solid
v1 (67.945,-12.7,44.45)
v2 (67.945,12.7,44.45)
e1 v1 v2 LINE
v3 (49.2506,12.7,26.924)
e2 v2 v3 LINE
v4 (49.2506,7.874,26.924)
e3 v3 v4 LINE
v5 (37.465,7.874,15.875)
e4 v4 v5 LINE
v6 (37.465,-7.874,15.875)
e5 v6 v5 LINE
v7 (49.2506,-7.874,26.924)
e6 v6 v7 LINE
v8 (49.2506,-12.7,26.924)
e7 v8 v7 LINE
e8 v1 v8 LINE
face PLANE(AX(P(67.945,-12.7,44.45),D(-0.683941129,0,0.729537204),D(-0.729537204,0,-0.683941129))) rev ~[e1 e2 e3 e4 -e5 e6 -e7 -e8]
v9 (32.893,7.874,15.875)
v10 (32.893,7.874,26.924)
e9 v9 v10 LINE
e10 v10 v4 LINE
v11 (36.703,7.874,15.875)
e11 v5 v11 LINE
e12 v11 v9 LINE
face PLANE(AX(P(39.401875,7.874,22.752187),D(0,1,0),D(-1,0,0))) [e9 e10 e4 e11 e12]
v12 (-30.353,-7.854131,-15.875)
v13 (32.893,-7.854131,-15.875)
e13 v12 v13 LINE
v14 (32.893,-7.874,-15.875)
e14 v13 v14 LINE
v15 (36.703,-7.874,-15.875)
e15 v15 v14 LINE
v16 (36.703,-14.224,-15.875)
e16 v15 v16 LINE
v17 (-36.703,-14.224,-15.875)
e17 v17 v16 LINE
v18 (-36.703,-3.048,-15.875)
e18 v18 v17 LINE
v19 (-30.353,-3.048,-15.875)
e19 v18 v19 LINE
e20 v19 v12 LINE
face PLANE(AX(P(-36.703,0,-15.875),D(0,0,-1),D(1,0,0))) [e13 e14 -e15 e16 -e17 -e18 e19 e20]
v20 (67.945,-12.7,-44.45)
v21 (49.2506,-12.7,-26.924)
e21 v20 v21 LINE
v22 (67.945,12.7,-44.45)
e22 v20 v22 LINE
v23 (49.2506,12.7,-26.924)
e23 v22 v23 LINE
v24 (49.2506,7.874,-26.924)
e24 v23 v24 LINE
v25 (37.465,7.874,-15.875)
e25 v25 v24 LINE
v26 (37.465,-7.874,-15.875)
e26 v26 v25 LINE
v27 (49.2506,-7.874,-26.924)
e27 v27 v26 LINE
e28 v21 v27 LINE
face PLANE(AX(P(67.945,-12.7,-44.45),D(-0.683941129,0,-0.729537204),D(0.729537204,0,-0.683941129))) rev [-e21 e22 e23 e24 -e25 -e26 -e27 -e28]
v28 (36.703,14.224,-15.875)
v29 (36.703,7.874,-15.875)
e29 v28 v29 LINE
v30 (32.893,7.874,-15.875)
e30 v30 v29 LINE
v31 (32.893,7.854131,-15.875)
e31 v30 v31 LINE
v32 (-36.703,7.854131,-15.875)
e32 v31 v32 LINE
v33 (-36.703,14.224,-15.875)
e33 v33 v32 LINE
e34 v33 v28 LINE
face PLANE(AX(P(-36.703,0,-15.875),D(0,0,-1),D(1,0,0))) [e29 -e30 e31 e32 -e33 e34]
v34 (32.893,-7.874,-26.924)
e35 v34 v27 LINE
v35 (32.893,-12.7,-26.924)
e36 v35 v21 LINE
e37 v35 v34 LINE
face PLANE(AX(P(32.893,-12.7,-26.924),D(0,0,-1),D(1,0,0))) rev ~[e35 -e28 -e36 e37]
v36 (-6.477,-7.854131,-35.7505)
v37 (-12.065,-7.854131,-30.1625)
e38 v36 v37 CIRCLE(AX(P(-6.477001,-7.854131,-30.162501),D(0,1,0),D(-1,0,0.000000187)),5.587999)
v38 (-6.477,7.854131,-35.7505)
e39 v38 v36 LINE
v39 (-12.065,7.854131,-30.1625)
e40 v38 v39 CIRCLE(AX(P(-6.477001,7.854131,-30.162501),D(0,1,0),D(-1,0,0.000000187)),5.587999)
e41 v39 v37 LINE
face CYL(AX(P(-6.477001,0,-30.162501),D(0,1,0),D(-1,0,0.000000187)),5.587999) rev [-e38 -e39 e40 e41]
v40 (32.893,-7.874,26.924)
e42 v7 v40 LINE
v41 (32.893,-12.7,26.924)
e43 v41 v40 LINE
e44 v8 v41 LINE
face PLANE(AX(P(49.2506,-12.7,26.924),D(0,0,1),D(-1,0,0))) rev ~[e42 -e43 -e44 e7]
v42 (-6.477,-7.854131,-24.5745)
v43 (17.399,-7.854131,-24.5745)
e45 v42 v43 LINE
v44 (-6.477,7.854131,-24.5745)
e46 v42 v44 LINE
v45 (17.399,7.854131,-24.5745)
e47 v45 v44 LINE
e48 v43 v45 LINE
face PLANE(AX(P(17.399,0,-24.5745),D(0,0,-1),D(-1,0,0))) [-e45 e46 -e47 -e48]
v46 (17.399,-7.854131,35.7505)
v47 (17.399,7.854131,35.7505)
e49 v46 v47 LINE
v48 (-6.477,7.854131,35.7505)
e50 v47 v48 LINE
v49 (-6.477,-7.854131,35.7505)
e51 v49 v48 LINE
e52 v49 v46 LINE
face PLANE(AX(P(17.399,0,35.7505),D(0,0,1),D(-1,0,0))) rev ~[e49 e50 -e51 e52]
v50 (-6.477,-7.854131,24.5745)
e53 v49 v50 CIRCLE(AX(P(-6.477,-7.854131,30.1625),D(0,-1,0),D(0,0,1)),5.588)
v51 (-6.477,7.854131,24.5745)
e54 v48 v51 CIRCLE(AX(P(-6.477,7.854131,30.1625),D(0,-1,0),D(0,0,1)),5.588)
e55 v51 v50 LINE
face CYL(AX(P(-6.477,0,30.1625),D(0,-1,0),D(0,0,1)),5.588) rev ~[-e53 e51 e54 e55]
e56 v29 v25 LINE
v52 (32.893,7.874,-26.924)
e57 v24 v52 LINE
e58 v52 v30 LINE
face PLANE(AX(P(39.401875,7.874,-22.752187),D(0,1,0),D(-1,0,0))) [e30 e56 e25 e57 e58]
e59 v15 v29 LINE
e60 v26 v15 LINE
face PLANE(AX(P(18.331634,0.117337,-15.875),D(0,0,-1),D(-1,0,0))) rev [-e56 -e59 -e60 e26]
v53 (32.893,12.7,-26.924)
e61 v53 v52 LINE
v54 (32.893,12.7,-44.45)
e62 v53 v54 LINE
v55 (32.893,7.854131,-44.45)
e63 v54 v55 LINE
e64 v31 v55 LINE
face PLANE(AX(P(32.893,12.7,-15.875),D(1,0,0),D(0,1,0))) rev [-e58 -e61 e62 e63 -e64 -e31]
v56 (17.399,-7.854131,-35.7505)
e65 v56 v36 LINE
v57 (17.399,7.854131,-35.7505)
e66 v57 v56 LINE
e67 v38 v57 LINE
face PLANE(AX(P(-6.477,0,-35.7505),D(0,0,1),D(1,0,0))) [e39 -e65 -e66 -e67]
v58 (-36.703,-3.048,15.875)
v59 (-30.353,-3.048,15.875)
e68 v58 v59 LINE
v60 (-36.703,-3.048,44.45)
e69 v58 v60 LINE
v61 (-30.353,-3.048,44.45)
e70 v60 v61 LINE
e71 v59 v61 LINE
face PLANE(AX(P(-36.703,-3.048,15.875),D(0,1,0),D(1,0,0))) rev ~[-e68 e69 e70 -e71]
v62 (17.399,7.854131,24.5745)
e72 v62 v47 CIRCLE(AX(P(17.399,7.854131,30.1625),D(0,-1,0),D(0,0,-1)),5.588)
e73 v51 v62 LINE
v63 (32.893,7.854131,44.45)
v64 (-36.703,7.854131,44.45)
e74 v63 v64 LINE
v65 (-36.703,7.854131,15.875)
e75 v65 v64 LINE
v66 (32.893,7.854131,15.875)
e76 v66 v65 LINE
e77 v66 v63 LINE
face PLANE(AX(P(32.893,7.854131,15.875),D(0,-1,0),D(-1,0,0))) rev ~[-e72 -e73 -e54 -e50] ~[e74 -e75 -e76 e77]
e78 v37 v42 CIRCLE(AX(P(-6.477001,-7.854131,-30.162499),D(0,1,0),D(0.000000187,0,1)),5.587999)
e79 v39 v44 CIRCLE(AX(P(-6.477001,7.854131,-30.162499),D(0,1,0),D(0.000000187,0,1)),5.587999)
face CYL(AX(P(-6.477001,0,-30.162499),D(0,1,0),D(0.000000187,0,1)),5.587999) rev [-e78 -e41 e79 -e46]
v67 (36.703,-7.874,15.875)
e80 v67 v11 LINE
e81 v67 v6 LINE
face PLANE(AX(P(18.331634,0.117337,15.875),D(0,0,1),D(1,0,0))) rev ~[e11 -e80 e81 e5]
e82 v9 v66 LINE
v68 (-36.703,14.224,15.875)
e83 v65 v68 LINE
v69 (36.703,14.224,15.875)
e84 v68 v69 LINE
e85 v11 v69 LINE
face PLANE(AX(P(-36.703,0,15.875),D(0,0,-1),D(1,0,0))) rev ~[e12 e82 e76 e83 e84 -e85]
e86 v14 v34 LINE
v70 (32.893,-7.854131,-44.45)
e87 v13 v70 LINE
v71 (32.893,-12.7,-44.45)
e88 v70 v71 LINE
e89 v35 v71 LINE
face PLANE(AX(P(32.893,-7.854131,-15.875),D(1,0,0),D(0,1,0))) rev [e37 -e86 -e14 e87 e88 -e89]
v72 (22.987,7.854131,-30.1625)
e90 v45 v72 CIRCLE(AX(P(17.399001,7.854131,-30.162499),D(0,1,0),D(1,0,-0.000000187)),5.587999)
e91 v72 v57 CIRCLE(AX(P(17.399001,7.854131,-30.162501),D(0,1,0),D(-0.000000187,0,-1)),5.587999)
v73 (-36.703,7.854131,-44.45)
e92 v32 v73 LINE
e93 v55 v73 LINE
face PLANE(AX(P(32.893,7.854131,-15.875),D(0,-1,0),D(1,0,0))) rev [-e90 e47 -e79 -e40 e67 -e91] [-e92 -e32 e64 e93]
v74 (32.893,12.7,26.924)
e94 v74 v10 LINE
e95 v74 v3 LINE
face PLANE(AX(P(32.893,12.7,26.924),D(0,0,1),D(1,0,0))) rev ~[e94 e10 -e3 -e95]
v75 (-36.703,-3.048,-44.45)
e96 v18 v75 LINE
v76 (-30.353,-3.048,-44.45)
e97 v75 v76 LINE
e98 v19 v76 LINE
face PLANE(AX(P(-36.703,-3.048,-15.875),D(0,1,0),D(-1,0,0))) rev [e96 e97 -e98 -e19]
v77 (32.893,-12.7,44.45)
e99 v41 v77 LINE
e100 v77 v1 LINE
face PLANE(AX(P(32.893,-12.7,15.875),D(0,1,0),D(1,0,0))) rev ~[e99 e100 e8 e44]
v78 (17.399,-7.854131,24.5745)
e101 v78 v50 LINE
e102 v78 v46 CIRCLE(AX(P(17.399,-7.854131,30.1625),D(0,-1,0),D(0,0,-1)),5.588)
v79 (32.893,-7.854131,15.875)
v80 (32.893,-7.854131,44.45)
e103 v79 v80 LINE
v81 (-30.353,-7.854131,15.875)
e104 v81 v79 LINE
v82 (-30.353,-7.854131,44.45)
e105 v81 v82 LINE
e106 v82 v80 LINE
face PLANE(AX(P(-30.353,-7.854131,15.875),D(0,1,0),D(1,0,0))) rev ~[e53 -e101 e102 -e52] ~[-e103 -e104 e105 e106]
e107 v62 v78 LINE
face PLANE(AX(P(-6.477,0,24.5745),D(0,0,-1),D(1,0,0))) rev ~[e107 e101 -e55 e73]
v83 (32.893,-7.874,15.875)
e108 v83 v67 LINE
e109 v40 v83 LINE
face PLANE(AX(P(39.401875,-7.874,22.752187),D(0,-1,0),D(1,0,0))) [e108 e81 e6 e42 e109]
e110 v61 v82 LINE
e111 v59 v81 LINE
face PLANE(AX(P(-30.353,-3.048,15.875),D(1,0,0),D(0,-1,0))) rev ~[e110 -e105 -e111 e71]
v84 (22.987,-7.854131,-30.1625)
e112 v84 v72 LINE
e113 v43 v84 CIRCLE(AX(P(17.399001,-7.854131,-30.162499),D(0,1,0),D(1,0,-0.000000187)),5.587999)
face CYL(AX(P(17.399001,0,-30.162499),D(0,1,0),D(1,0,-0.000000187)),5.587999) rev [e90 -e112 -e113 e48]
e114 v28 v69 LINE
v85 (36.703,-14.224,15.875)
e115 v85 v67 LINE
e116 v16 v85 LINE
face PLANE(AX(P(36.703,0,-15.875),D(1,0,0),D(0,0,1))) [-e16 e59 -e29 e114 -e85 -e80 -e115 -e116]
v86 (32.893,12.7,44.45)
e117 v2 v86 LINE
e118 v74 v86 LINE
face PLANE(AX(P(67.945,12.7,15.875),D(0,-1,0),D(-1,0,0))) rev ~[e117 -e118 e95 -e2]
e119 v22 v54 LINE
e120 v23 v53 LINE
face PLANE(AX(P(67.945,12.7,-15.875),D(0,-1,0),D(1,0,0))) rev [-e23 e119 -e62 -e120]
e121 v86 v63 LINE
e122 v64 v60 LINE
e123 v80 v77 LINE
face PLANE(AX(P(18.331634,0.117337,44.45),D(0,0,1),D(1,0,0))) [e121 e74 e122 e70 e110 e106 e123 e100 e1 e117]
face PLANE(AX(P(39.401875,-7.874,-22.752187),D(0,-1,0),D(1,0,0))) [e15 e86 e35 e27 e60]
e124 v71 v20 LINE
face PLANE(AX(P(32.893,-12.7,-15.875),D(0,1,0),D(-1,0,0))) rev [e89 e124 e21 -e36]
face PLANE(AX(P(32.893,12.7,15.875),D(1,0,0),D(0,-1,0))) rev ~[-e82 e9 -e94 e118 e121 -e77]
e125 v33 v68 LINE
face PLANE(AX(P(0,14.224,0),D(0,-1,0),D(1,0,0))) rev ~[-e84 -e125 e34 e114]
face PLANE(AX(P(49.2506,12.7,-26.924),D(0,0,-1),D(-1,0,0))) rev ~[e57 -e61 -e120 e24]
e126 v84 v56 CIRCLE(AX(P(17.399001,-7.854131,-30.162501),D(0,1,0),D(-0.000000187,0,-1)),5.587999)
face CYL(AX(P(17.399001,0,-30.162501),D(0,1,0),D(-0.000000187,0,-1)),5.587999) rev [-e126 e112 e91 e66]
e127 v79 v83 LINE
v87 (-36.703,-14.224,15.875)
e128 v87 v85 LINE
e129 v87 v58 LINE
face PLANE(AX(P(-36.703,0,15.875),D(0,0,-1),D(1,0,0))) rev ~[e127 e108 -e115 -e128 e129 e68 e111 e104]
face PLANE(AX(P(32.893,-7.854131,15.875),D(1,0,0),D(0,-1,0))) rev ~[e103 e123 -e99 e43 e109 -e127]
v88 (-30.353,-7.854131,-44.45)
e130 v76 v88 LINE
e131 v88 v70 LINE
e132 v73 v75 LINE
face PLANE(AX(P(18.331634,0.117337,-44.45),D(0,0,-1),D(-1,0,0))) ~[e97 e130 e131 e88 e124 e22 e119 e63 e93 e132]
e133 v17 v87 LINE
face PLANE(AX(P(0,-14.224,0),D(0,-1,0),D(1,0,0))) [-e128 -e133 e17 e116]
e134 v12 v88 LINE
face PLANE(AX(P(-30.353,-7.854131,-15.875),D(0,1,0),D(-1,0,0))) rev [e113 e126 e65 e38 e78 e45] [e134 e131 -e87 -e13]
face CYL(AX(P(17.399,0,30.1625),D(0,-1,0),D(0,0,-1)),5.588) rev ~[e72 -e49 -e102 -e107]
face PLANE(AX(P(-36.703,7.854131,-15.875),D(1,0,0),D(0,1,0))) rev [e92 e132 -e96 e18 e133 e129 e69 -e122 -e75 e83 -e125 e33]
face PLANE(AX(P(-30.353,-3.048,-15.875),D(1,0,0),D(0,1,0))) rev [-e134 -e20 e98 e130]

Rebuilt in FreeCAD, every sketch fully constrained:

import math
import FreeCAD as App
import Part
import Sketcher
from FreeCAD import Vector
Q = App.Units.Quantity


def add_polygon(sketch, points):
    """Adds a closed chain of lines whose ends are joined by coincident constraints."""
    first, n = sketch.GeometryCount, len(points)
    for a, b in zip(points, points[1:] + points[:1]):
        sketch.addGeometry(Part.LineSegment(App.Vector(*a, 0), App.Vector(*b, 0)), False)
    for i in range(n):
        sketch.addConstraint(Sketcher.Constraint("Coincident", first + i, 2, first + (i + 1) % n, 1))

doc = App.newDocument("Part")
params = doc.addObject("Spreadsheet::Sheet", "Params")
for row, (alias, value) in enumerate([
    ("sketch1_width", "2.89 in"),
    ("sketch1_height", "1.25 in"),
    ("pad1_length", "1.12 in"),
    ("sketch2_height", "1 in"),
    ("sketch2_width", "0.25 in"),
    ("sketch2_width2", "2.49 in"),
    ("sketch2_width3", "1.38 in"),
    ("pad2_length", "1.125 in"),
    ("sketch3_width", "1.2 in"),
    ("sketch3_height", "1.125 in"),
    ("pocket1_length", "1 in"),
    ("sketch4_radius", "0.22 in"),
    ("sketch4_width", "0.94 in"),
    ("pocket2_length", "1 in"),
    ("sketch5_width", "0.18 in"),
    ("sketch5_width2", "0.644 in"),
    ("sketch5_height", "0.435 in"),
    ("pocket3_length", "0.19 in"),
    ("sketch6_width", "0.18 in"),
    ("sketch6_width2", "0.644 in"),
    ("sketch6_height", "0.435 in"),
    ("pocket4_length", "0.19 in"),
], start=1):
    params.set(f"A{row}", alias)
    params.set(f"B{row}", "=" + value)
    params.setAlias(f"B{row}", alias)

body = doc.addObject("PartDesign::Body", "Body")

# Sketch on XZ plane
sketch1 = body.newObject("Sketcher::SketchObject", "Sketch")
sketch1.AttachmentSupport = (doc.getObject("XZ_Plane"), [""])
sketch1.MapMode = "FlatFace"
add_polygon(sketch1, [(-37, 16), (-37, -16), (37, -16), (37, 16)])  # lines 0-3
sketch1.addConstraint(Sketcher.Constraint("Vertical", 0))
sketch1.addConstraint(Sketcher.Constraint("Horizontal", 1))
sketch1.addConstraint(Sketcher.Constraint("Vertical", 2))
sketch1.addConstraint(Sketcher.Constraint("Horizontal", 3))
sketch1.addConstraint(Sketcher.Constraint("Symmetric", 0, 2, 2, 2, -1, 1))
sketch1.addConstraint(Sketcher.Constraint("DistanceX", 1, 1, 1, 2, Q("2.89 in")))
sketch1.addConstraint(Sketcher.Constraint("DistanceY", 0, 2, 0, 1, Q("1.25 in")))
sketch1.setExpression("Constraints[9]", "Params.sketch1_width")
sketch1.setExpression("Constraints[10]", "Params.sketch1_height")
pad1 = body.newObject("PartDesign::Pad", "Pad")
pad1.Profile = sketch1
pad1.setExpression("Length", "Params.pad1_length")
pad1.Midplane = True

# Sketch on XY plane
sketch2 = body.newObject("Sketcher::SketchObject", "Sketch001")
sketch2.AttachmentSupport = (doc.getObject("XY_Plane"), [""])
sketch2.MapMode = "FlatFace"
sketch2.AttachmentOffset = App.Placement(Vector(0, 0, 0.625 * 25.4), App.Rotation())
add_polygon(sketch2, [(-36.7, 7.9), (-36.7, -3), (-30.4, -3), (-30.4, -7.9), (32.9, -7.9), (32.9, -12.7), (67.9, -12.7), (67.9, 12.7), (32.9, 12.7), (32.9, 7.9)])  # lines 0-9
sketch2.addConstraint(Sketcher.Constraint("Vertical", 0))
sketch2.addConstraint(Sketcher.Constraint("Horizontal", 1))
sketch2.addConstraint(Sketcher.Constraint("Vertical", 2))
sketch2.addConstraint(Sketcher.Constraint("Horizontal", 3))
sketch2.addConstraint(Sketcher.Constraint("Vertical", 4))
sketch2.addConstraint(Sketcher.Constraint("Horizontal", 5))
sketch2.addConstraint(Sketcher.Constraint("Vertical", 6))
sketch2.addConstraint(Sketcher.Constraint("Horizontal", 7))
sketch2.addConstraint(Sketcher.Constraint("Vertical", 8))
sketch2.addConstraint(Sketcher.Constraint("Horizontal", 9))
sketch2.addConstraint(Sketcher.Constraint("Symmetric", 4, 2, 7, 2, -1))
sketch2.addConstraint(Sketcher.Constraint("Equal", 4, 8))
sketch2.addConstraint(Sketcher.Constraint("DistanceY", 6, 1, 6, 2, Q("1 in")))
sketch2.addConstraint(Sketcher.Constraint("DistanceX", 1, 1, 1, 2, Q("0.25 in")))
sketch2.addConstraint(Sketcher.Constraint("DistanceX", 3, 1, 3, 2, Q("2.49 in")))
sketch2.addConstraint(Sketcher.Constraint("DistanceX", 5, 1, 5, 2, Q("1.38 in")))
sketch2.addConstraint(Sketcher.Constraint("DistanceY", 0, 2, -1, 1, Q("0.12 in")))
sketch2.addConstraint(Sketcher.Constraint("DistanceX", 0, 2, -1, 1, Q("1.445 in")))
sketch2.addConstraint(Sketcher.Constraint("DistanceY", 0, 2, 0, 1, 10.902131))
sketch2.setExpression("Constraints[22]", "Params.sketch2_height")
sketch2.setExpression("Constraints[23]", "Params.sketch2_width")
sketch2.setExpression("Constraints[24]", "Params.sketch2_width2")
sketch2.setExpression("Constraints[25]", "Params.sketch2_width3")
pad2 = body.newObject("PartDesign::Pad", "Pad001")
pad2.Profile = sketch2
pad2.setExpression("Length", "Params.pad2_length")

# Sketch on XZ plane
sketch3 = body.newObject("Sketcher::SketchObject", "Sketch002")
sketch3.AttachmentSupport = (doc.getObject("XZ_Plane"), [""])
sketch3.MapMode = "FlatFace"
sketch3.AttachmentOffset = App.Placement(Vector(0, 0, 0.5 * 25.4), App.Rotation())
add_polygon(sketch3, [(68, 44), (37, 16), (68, 16)])  # lines 0-2
sketch3.addConstraint(Sketcher.Constraint("Horizontal", 1))
sketch3.addConstraint(Sketcher.Constraint("Vertical", 2))
sketch3.addConstraint(Sketcher.Constraint("DistanceX", 1, 1, 1, 2, Q("1.2 in")))
sketch3.addConstraint(Sketcher.Constraint("DistanceY", 2, 1, 2, 2, Q("1.125 in")))
sketch3.addConstraint(Sketcher.Constraint("DistanceY", -1, 1, 2, 2, Q("1.75 in")))
sketch3.addConstraint(Sketcher.Constraint("DistanceX", -1, 1, 0, 2, Q("1.475 in")))
sketch3.setExpression("Constraints[5]", "Params.sketch3_width")
sketch3.setExpression("Constraints[6]", "Params.sketch3_height")
pocket1 = body.newObject("PartDesign::Pocket", "Pocket")
pocket1.Profile = sketch3
pocket1.setExpression("Length", "Params.pocket1_length")
body2 = doc.addObject("PartDesign::Body", "Body001")
doc.recompute()

body2.BaseFeature = body
doc.recompute()

mirroring = doc.addObject("Part::Mirroring", "Mirroring")
mirroring.Source = body
mirroring.Base = Vector(0, 0, 0)
mirroring.Normal = Vector(0, 0, 1)
body3 = doc.addObject("PartDesign::Body", "Body002")
body3.BaseFeature = mirroring
boolean = body2.newObject("PartDesign::Boolean", "Boolean")
boolean.Type = "Fuse"
boolean.addObjects([body3])
doc.recompute()

# Sketch on XZ plane
sketch4 = body2.newObject("Sketcher::SketchObject", "Sketch003")
sketch4.AttachmentSupport = (doc.getObject("XZ_Plane001"), [""])
sketch4.MapMode = "FlatFace"
sketch4.addGeometry(Part.ArcOfCircle(Part.Circle(Vector(-6, -30, 0), Vector(0, 0, 1), 6), math.radians(90), math.radians(180)), False)
sketch4.addGeometry(Part.ArcOfCircle(Part.Circle(Vector(-6, -30, 0), Vector(0, 0, 1), 6), math.radians(180), math.radians(270)), False)
sketch4.addGeometry(Part.LineSegment(Vector(-6, -36, 0), Vector(17, -36, 0)), False)
sketch4.addGeometry(Part.ArcOfCircle(Part.Circle(Vector(17, -30, 0), Vector(0, 0, 1), 6), math.radians(-90), math.radians(0)), False)
sketch4.addGeometry(Part.ArcOfCircle(Part.Circle(Vector(17, -30, 0), Vector(0, 0, 1), 6), math.radians(0), math.radians(90)), False)
sketch4.addGeometry(Part.LineSegment(Vector(17, -25, 0), Vector(-6, -25, 0)), False)
sketch4.addGeometry(Part.ArcOfCircle(Part.Circle(Vector(-6, 30, 0), Vector(0, 0, 1), 6), math.radians(90), math.radians(270)), False)
sketch4.addGeometry(Part.LineSegment(Vector(-6, 25, 0), Vector(17, 25, 0)), False)
sketch4.addGeometry(Part.ArcOfCircle(Part.Circle(Vector(17, 30, 0), Vector(0, 0, 1), 6), math.radians(-90), math.radians(90)), False)
sketch4.addGeometry(Part.LineSegment(Vector(17, 36, 0), Vector(-6, 36, 0)), False)
sketch4.addConstraint(Sketcher.Constraint("Tangent", 0, 2, 1, 1))
sketch4.addConstraint(Sketcher.Constraint("Tangent", 1, 2, 2, 1))
sketch4.addConstraint(Sketcher.Constraint("Tangent", 2, 2, 3, 1))
sketch4.addConstraint(Sketcher.Constraint("Tangent", 3, 2, 4, 1))
sketch4.addConstraint(Sketcher.Constraint("Tangent", 4, 2, 5, 1))
sketch4.addConstraint(Sketcher.Constraint("Tangent", 5, 2, 0, 1))
sketch4.addConstraint(Sketcher.Constraint("Tangent", 6, 2, 7, 1))
sketch4.addConstraint(Sketcher.Constraint("Tangent", 7, 2, 8, 1))
sketch4.addConstraint(Sketcher.Constraint("Tangent", 8, 2, 9, 1))
sketch4.addConstraint(Sketcher.Constraint("Tangent", 9, 2, 6, 1))
sketch4.addConstraint(Sketcher.Constraint("Horizontal", 2))
sketch4.addConstraint(Sketcher.Constraint("Horizontal", 5))
sketch4.addConstraint(Sketcher.Constraint("Horizontal", 7))
sketch4.addConstraint(Sketcher.Constraint("Horizontal", 9))
sketch4.addConstraint(Sketcher.Constraint("Equal", 0, 1))
sketch4.addConstraint(Sketcher.Constraint("Equal", 1, 3))
sketch4.addConstraint(Sketcher.Constraint("Equal", 4, 6))
sketch4.addConstraint(Sketcher.Constraint("Symmetric", 0, 3, 6, 3, -1))
sketch4.addConstraint(Sketcher.Constraint("Horizontal", 4, 3, 0, 2))
sketch4.addConstraint(Sketcher.Constraint("Horizontal", 0, 2, 3, 2))
sketch4.addConstraint(Sketcher.Constraint("Vertical", 4, 3, 8, 3))
sketch4.addConstraint(Sketcher.Constraint("Radius", 0, Q("0.22 in")))
sketch4.addConstraint(Sketcher.Constraint("DistanceX", 2, 1, 2, 2, Q("0.94 in")))
sketch4.addConstraint(Sketcher.Constraint("DistanceX", 0, 3, -1, 1, Q("0.255 in")))
sketch4.addConstraint(Sketcher.Constraint("DistanceY", 0, 3, -1, 1, Q("1.1875 in")))
sketch4.setExpression("Constraints[21]", "Params.sketch4_radius")
sketch4.setExpression("Constraints[22]", "Params.sketch4_width")
pocket2 = body2.newObject("PartDesign::Pocket", "Pocket001")
pocket2.Profile = sketch4
pocket2.setExpression("Length", "Params.pocket2_length")
pocket2.Midplane = True

# Sketch on XZ plane
sketch5 = body2.newObject("Sketcher::SketchObject", "Sketch004")
sketch5.AttachmentSupport = (doc.getObject("XZ_Plane001"), [""])
sketch5.MapMode = "FlatFace"
sketch5.AttachmentOffset = App.Placement(Vector(0, 0, 0.5 * 25.4), App.Rotation())
add_polygon(sketch5, [(32.9, -15.9), (32.9, -26.9), (49.3, -26.9), (37.5, -15.9)])  # lines 0-3
add_polygon(sketch5, [(37.5, 15.9), (49.3, 26.9), (32.9, 26.9), (32.9, 15.9)])  # lines 4-7
sketch5.addConstraint(Sketcher.Constraint("Vertical", 0))
sketch5.addConstraint(Sketcher.Constraint("Horizontal", 1))
sketch5.addConstraint(Sketcher.Constraint("Horizontal", 3))
sketch5.addConstraint(Sketcher.Constraint("Horizontal", 5))
sketch5.addConstraint(Sketcher.Constraint("Vertical", 6))
sketch5.addConstraint(Sketcher.Constraint("Horizontal", 7))
sketch5.addConstraint(Sketcher.Constraint("Symmetric", 1, 2, 4, 2, -1))
sketch5.addConstraint(Sketcher.Constraint("Symmetric", 3, 2, 6, 2, -1))
sketch5.addConstraint(Sketcher.Constraint("Vertical", 2, 2, 7, 2))
sketch5.addConstraint(Sketcher.Constraint("DistanceX", 3, 2, 3, 1, Q("0.18 in")))
sketch5.addConstraint(Sketcher.Constraint("DistanceX", 1, 1, 1, 2, Q("0.644 in")))
sketch5.addConstraint(Sketcher.Constraint("DistanceY", 0, 2, 0, 1, Q("0.435 in")))
sketch5.addConstraint(Sketcher.Constraint("DistanceY", 0, 2, -1, 1, Q("1.06 in")))
sketch5.addConstraint(Sketcher.Constraint("DistanceX", -1, 1, 0, 2, Q("1.295 in")))
sketch5.setExpression("Constraints[17]", "Params.sketch5_width")
sketch5.setExpression("Constraints[18]", "Params.sketch5_width2")
sketch5.setExpression("Constraints[19]", "Params.sketch5_height")
pocket3 = body2.newObject("PartDesign::Pocket", "Pocket002")
pocket3.Profile = sketch5
pocket3.setExpression("Length", "Params.pocket3_length")

# Sketch on XZ plane
sketch6 = body2.newObject("Sketcher::SketchObject", "Sketch005")
sketch6.AttachmentSupport = (doc.getObject("XZ_Plane001"), [""])
sketch6.MapMode = "FlatFace"
sketch6.AttachmentOffset = App.Placement(Vector(0, 0, -0.5 * 25.4), App.Rotation())
add_polygon(sketch6, [(49.3, -26.9), (32.9, -26.9), (32.9, -15.9), (37.5, -15.9)])  # lines 0-3
add_polygon(sketch6, [(37.5, 15.9), (32.9, 15.9), (32.9, 26.9), (49.3, 26.9)])  # lines 4-7
sketch6.addConstraint(Sketcher.Constraint("Horizontal", 0))
sketch6.addConstraint(Sketcher.Constraint("Vertical", 1))
sketch6.addConstraint(Sketcher.Constraint("Horizontal", 2))
sketch6.addConstraint(Sketcher.Constraint("Horizontal", 4))
sketch6.addConstraint(Sketcher.Constraint("Vertical", 5))
sketch6.addConstraint(Sketcher.Constraint("Horizontal", 6))
sketch6.addConstraint(Sketcher.Constraint("Symmetric", 1, 2, 4, 2, -1))
sketch6.addConstraint(Sketcher.Constraint("Symmetric", 3, 2, 6, 2, -1))
sketch6.addConstraint(Sketcher.Constraint("Vertical", 2, 2, 7, 2))
sketch6.addConstraint(Sketcher.Constraint("DistanceX", 2, 1, 2, 2, Q("0.18 in")))
sketch6.addConstraint(Sketcher.Constraint("DistanceX", 0, 2, 0, 1, Q("0.644 in")))
sketch6.addConstraint(Sketcher.Constraint("DistanceY", 1, 1, 1, 2, Q("0.435 in")))
sketch6.addConstraint(Sketcher.Constraint("DistanceY", 0, 2, -1, 1, Q("1.06 in")))
sketch6.addConstraint(Sketcher.Constraint("DistanceX", -1, 1, 0, 2, Q("1.295 in")))
sketch6.setExpression("Constraints[17]", "Params.sketch6_width")
sketch6.setExpression("Constraints[18]", "Params.sketch6_width2")
sketch6.setExpression("Constraints[19]", "Params.sketch6_height")
pocket4 = body2.newObject("PartDesign::Pocket", "Pocket003")
pocket4.Profile = sketch6
pocket4.setExpression("Length", "Params.pocket4_length")
pocket4.Reversed = True
mirroring.Visibility = False

doc.recompute()
